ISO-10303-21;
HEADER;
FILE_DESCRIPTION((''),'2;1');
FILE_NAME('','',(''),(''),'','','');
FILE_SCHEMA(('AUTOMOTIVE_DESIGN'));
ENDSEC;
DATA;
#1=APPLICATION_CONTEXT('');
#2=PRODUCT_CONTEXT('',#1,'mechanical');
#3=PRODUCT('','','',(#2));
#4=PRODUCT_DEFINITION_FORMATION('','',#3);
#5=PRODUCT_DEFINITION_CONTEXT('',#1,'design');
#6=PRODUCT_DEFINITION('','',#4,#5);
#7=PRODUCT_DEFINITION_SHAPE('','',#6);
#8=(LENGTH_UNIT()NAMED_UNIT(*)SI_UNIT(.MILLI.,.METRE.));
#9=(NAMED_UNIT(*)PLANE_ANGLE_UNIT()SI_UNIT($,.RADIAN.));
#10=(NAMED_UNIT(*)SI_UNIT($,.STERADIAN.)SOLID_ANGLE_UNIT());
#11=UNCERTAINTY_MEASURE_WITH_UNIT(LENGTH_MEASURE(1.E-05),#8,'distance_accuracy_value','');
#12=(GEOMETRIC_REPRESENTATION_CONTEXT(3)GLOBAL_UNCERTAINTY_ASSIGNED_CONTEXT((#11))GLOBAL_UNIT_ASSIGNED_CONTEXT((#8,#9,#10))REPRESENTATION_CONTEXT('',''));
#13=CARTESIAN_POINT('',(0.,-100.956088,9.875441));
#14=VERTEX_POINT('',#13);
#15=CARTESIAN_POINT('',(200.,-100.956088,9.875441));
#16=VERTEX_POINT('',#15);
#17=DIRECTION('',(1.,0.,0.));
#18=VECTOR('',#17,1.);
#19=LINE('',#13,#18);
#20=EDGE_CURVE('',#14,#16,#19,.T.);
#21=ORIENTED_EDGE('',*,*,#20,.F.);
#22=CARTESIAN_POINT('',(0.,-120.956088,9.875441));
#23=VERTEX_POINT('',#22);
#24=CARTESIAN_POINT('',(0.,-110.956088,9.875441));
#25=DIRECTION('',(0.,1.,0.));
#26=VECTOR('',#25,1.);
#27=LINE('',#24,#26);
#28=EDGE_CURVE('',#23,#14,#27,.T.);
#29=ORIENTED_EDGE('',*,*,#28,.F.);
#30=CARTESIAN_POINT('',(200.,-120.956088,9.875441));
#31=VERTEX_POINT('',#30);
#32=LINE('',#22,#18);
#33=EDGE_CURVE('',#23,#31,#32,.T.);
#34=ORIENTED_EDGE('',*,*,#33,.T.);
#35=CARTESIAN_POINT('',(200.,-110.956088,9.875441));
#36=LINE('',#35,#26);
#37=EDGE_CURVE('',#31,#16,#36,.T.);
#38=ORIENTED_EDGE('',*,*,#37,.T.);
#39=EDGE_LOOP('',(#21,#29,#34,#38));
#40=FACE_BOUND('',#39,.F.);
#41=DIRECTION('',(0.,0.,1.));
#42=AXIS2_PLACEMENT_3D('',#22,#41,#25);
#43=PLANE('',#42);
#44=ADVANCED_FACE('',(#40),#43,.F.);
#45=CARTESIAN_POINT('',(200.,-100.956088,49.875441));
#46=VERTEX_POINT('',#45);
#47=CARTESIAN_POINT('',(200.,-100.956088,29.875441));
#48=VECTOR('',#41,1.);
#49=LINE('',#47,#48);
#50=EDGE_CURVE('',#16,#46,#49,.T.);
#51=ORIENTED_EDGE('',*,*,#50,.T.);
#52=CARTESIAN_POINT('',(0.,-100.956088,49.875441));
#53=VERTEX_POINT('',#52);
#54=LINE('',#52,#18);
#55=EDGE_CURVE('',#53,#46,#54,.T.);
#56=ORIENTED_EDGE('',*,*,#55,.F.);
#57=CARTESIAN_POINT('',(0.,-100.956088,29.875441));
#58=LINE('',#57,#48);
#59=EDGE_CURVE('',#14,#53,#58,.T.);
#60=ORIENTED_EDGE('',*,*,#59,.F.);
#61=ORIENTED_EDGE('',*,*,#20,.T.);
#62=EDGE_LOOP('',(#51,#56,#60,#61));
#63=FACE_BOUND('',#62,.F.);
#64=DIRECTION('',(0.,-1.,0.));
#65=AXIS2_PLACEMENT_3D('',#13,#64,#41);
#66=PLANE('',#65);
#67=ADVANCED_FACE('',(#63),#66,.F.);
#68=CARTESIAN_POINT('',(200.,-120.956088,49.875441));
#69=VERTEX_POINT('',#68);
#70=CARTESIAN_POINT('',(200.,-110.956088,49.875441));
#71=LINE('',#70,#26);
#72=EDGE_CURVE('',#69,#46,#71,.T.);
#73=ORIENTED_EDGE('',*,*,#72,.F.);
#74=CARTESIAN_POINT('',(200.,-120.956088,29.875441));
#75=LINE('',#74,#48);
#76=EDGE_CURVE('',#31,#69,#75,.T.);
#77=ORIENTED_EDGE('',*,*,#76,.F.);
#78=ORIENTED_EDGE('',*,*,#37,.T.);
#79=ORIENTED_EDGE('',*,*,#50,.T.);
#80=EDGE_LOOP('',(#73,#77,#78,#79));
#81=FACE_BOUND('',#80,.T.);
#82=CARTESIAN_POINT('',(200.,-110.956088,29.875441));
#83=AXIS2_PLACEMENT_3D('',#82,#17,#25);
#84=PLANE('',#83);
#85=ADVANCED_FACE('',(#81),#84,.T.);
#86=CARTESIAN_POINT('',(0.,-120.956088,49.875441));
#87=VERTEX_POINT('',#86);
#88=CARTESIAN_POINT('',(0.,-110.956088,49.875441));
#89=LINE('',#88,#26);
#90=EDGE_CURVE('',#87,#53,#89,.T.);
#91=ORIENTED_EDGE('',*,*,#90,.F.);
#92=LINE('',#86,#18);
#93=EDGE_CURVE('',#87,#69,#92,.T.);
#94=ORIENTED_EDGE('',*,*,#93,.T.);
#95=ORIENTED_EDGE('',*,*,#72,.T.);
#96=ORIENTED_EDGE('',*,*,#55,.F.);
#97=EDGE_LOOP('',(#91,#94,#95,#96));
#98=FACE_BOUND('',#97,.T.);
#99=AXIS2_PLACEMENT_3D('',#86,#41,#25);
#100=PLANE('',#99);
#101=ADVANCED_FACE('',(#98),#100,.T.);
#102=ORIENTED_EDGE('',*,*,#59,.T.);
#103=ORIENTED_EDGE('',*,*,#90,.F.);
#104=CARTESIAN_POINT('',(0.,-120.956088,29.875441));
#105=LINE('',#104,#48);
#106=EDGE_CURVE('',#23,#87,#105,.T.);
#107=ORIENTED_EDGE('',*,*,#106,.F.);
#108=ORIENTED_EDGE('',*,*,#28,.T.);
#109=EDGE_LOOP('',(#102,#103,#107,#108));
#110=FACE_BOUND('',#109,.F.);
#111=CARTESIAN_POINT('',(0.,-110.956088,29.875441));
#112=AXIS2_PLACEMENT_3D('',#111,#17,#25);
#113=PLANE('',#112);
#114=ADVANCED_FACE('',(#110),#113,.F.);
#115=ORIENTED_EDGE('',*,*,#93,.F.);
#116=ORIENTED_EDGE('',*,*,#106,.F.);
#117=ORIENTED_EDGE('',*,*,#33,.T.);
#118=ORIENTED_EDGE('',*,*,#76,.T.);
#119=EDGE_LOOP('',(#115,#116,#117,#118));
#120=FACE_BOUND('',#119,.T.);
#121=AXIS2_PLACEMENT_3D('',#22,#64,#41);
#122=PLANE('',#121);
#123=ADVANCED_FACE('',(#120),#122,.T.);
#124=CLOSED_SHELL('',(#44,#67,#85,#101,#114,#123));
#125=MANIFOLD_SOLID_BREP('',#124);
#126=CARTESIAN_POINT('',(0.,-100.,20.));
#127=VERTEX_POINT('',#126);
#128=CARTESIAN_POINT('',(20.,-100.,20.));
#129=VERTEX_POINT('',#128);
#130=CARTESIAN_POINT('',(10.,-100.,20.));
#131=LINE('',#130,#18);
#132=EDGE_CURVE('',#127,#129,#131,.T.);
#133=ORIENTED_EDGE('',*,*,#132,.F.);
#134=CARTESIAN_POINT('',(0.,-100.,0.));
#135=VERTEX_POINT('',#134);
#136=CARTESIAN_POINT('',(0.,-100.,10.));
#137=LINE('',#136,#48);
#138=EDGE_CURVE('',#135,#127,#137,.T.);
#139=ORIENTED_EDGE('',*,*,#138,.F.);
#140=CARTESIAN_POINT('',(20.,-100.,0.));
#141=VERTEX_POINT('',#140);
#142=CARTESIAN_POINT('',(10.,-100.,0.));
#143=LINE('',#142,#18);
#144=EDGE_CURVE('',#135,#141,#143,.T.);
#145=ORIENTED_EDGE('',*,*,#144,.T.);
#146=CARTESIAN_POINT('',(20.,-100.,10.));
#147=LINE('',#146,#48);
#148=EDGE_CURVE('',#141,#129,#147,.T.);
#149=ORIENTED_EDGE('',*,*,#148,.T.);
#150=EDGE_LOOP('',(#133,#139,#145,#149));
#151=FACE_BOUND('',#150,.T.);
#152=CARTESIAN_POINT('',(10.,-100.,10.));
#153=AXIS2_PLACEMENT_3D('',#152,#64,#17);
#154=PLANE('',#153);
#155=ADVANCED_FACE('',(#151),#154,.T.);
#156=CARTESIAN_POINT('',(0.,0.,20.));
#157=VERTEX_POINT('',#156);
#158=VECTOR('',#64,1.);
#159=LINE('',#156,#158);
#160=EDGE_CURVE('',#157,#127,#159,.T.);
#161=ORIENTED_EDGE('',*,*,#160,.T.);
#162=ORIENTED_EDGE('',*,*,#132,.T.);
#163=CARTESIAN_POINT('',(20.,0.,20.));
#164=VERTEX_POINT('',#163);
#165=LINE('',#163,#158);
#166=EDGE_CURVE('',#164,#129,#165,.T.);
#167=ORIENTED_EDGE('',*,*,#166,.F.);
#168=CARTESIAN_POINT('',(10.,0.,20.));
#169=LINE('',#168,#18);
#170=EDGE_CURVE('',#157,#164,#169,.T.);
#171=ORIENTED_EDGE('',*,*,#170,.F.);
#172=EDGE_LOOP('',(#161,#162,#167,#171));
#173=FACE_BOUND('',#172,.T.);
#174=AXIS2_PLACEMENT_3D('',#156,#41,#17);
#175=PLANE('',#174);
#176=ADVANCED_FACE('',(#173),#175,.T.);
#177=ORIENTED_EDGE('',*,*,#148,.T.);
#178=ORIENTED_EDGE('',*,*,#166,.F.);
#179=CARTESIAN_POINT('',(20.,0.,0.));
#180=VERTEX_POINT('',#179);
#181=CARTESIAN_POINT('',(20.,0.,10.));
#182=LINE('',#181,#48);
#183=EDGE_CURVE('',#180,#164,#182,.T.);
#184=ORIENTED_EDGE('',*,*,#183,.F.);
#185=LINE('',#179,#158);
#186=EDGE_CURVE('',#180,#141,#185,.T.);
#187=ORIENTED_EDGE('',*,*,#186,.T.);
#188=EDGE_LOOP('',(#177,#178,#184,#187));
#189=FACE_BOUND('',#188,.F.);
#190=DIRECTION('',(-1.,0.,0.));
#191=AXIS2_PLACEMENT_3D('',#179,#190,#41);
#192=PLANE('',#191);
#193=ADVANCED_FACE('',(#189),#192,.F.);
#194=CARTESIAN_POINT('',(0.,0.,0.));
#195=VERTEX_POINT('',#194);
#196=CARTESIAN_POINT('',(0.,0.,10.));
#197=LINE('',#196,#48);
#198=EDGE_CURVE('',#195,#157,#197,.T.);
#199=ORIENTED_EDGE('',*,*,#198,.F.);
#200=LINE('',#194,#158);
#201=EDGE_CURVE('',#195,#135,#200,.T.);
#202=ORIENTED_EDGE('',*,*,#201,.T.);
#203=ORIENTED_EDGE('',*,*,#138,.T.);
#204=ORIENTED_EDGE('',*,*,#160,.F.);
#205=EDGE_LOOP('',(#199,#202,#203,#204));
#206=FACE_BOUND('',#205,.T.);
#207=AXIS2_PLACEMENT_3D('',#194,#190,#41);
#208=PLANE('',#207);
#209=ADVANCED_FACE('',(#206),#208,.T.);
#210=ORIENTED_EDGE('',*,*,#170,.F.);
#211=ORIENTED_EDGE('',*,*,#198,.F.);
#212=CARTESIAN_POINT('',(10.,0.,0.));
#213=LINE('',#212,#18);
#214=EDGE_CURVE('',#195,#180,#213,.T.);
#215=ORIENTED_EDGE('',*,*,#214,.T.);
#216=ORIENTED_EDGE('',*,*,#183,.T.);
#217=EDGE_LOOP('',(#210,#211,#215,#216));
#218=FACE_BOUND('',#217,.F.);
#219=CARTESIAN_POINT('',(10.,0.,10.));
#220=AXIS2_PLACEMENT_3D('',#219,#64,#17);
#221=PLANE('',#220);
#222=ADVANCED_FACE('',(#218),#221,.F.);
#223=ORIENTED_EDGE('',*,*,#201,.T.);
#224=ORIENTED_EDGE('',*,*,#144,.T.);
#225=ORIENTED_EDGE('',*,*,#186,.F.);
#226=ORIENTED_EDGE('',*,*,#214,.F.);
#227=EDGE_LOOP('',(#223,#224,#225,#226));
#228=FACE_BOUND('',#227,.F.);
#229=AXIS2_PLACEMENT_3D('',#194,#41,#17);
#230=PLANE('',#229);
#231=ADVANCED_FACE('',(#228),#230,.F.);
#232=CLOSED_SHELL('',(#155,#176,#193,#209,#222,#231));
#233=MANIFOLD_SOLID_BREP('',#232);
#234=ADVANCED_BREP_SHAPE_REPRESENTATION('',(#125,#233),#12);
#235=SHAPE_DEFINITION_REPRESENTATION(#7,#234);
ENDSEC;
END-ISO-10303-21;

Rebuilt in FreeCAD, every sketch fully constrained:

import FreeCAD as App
import Part
import Sketcher


def add_polygon(sketch, points):
    """Adds a closed chain of lines whose ends are joined by coincident constraints."""
    first, n = sketch.GeometryCount, len(points)
    for a, b in zip(points, points[1:] + points[:1]):
        sketch.addGeometry(Part.LineSegment(App.Vector(*a, 0), App.Vector(*b, 0)), False)
    for i in range(n):
        sketch.addConstraint(Sketcher.Constraint("Coincident", first + i, 2, first + (i + 1) % n, 1))

doc = App.newDocument("Part")
body = doc.addObject("PartDesign::Body", "Body")

# Sketch on XZ plane
sketch1 = body.newObject("Sketcher::SketchObject", "Sketch")
sketch1.AttachmentSupport = (doc.getObject("XZ_Plane"), [""])
sketch1.MapMode = "FlatFace"
add_polygon(sketch1, [(0, 20), (0, 0), (20, 0), (20, 20)])  # lines 0-3
sketch1.addConstraint(Sketcher.Constraint("Vertical", 0))
sketch1.addConstraint(Sketcher.Constraint("Horizontal", 1))
sketch1.addConstraint(Sketcher.Constraint("Vertical", 2))
sketch1.addConstraint(Sketcher.Constraint("Horizontal", 3))
sketch1.addConstraint(Sketcher.Constraint("Coincident", 0, 2, -1, 1))
sketch1.addConstraint(Sketcher.Constraint("Equal", 3, 0))
sketch1.addConstraint(Sketcher.Constraint("DistanceX", 1, 1, 1, 2, 20.0))
pad1 = body.newObject("PartDesign::Pad", "Pad")
pad1.Profile = sketch1
pad1.Length = 100
body2 = doc.addObject("PartDesign::Body", "Body001")

# Sketch on YZ plane
sketch2 = body2.newObject("Sketcher::SketchObject", "Sketch001")
sketch2.AttachmentSupport = (doc.getObject("YZ_Plane001"), [""])
sketch2.MapMode = "FlatFace"
add_polygon(sketch2, [(-120.956088, 49.875441), (-120.956088, 9.875441), (-100.956088, 9.875441), (-100.956088, 49.875441)])  # lines 0-3
sketch2.addConstraint(Sketcher.Constraint("Vertical", 0))
sketch2.addConstraint(Sketcher.Constraint("Horizontal", 1))
sketch2.addConstraint(Sketcher.Constraint("Vertical", 2))
sketch2.addConstraint(Sketcher.Constraint("Horizontal", 3))
sketch2.addConstraint(Sketcher.Constraint("DistanceX", 1, 1, 1, 2, 20.0))
sketch2.addConstraint(Sketcher.Constraint("DistanceY", 0, 2, 0, 1, 40.0))
sketch2.addConstraint(Sketcher.Constraint("DistanceY", -1, 1, 0, 2, 9.875441))
sketch2.addConstraint(Sketcher.Constraint("DistanceX", 0, 2, -1, 1, 120.956088))
pad2 = body2.newObject("PartDesign::Pad", "Pad001")
pad2.Profile = sketch2
pad2.Length = 200

doc.recompute()
